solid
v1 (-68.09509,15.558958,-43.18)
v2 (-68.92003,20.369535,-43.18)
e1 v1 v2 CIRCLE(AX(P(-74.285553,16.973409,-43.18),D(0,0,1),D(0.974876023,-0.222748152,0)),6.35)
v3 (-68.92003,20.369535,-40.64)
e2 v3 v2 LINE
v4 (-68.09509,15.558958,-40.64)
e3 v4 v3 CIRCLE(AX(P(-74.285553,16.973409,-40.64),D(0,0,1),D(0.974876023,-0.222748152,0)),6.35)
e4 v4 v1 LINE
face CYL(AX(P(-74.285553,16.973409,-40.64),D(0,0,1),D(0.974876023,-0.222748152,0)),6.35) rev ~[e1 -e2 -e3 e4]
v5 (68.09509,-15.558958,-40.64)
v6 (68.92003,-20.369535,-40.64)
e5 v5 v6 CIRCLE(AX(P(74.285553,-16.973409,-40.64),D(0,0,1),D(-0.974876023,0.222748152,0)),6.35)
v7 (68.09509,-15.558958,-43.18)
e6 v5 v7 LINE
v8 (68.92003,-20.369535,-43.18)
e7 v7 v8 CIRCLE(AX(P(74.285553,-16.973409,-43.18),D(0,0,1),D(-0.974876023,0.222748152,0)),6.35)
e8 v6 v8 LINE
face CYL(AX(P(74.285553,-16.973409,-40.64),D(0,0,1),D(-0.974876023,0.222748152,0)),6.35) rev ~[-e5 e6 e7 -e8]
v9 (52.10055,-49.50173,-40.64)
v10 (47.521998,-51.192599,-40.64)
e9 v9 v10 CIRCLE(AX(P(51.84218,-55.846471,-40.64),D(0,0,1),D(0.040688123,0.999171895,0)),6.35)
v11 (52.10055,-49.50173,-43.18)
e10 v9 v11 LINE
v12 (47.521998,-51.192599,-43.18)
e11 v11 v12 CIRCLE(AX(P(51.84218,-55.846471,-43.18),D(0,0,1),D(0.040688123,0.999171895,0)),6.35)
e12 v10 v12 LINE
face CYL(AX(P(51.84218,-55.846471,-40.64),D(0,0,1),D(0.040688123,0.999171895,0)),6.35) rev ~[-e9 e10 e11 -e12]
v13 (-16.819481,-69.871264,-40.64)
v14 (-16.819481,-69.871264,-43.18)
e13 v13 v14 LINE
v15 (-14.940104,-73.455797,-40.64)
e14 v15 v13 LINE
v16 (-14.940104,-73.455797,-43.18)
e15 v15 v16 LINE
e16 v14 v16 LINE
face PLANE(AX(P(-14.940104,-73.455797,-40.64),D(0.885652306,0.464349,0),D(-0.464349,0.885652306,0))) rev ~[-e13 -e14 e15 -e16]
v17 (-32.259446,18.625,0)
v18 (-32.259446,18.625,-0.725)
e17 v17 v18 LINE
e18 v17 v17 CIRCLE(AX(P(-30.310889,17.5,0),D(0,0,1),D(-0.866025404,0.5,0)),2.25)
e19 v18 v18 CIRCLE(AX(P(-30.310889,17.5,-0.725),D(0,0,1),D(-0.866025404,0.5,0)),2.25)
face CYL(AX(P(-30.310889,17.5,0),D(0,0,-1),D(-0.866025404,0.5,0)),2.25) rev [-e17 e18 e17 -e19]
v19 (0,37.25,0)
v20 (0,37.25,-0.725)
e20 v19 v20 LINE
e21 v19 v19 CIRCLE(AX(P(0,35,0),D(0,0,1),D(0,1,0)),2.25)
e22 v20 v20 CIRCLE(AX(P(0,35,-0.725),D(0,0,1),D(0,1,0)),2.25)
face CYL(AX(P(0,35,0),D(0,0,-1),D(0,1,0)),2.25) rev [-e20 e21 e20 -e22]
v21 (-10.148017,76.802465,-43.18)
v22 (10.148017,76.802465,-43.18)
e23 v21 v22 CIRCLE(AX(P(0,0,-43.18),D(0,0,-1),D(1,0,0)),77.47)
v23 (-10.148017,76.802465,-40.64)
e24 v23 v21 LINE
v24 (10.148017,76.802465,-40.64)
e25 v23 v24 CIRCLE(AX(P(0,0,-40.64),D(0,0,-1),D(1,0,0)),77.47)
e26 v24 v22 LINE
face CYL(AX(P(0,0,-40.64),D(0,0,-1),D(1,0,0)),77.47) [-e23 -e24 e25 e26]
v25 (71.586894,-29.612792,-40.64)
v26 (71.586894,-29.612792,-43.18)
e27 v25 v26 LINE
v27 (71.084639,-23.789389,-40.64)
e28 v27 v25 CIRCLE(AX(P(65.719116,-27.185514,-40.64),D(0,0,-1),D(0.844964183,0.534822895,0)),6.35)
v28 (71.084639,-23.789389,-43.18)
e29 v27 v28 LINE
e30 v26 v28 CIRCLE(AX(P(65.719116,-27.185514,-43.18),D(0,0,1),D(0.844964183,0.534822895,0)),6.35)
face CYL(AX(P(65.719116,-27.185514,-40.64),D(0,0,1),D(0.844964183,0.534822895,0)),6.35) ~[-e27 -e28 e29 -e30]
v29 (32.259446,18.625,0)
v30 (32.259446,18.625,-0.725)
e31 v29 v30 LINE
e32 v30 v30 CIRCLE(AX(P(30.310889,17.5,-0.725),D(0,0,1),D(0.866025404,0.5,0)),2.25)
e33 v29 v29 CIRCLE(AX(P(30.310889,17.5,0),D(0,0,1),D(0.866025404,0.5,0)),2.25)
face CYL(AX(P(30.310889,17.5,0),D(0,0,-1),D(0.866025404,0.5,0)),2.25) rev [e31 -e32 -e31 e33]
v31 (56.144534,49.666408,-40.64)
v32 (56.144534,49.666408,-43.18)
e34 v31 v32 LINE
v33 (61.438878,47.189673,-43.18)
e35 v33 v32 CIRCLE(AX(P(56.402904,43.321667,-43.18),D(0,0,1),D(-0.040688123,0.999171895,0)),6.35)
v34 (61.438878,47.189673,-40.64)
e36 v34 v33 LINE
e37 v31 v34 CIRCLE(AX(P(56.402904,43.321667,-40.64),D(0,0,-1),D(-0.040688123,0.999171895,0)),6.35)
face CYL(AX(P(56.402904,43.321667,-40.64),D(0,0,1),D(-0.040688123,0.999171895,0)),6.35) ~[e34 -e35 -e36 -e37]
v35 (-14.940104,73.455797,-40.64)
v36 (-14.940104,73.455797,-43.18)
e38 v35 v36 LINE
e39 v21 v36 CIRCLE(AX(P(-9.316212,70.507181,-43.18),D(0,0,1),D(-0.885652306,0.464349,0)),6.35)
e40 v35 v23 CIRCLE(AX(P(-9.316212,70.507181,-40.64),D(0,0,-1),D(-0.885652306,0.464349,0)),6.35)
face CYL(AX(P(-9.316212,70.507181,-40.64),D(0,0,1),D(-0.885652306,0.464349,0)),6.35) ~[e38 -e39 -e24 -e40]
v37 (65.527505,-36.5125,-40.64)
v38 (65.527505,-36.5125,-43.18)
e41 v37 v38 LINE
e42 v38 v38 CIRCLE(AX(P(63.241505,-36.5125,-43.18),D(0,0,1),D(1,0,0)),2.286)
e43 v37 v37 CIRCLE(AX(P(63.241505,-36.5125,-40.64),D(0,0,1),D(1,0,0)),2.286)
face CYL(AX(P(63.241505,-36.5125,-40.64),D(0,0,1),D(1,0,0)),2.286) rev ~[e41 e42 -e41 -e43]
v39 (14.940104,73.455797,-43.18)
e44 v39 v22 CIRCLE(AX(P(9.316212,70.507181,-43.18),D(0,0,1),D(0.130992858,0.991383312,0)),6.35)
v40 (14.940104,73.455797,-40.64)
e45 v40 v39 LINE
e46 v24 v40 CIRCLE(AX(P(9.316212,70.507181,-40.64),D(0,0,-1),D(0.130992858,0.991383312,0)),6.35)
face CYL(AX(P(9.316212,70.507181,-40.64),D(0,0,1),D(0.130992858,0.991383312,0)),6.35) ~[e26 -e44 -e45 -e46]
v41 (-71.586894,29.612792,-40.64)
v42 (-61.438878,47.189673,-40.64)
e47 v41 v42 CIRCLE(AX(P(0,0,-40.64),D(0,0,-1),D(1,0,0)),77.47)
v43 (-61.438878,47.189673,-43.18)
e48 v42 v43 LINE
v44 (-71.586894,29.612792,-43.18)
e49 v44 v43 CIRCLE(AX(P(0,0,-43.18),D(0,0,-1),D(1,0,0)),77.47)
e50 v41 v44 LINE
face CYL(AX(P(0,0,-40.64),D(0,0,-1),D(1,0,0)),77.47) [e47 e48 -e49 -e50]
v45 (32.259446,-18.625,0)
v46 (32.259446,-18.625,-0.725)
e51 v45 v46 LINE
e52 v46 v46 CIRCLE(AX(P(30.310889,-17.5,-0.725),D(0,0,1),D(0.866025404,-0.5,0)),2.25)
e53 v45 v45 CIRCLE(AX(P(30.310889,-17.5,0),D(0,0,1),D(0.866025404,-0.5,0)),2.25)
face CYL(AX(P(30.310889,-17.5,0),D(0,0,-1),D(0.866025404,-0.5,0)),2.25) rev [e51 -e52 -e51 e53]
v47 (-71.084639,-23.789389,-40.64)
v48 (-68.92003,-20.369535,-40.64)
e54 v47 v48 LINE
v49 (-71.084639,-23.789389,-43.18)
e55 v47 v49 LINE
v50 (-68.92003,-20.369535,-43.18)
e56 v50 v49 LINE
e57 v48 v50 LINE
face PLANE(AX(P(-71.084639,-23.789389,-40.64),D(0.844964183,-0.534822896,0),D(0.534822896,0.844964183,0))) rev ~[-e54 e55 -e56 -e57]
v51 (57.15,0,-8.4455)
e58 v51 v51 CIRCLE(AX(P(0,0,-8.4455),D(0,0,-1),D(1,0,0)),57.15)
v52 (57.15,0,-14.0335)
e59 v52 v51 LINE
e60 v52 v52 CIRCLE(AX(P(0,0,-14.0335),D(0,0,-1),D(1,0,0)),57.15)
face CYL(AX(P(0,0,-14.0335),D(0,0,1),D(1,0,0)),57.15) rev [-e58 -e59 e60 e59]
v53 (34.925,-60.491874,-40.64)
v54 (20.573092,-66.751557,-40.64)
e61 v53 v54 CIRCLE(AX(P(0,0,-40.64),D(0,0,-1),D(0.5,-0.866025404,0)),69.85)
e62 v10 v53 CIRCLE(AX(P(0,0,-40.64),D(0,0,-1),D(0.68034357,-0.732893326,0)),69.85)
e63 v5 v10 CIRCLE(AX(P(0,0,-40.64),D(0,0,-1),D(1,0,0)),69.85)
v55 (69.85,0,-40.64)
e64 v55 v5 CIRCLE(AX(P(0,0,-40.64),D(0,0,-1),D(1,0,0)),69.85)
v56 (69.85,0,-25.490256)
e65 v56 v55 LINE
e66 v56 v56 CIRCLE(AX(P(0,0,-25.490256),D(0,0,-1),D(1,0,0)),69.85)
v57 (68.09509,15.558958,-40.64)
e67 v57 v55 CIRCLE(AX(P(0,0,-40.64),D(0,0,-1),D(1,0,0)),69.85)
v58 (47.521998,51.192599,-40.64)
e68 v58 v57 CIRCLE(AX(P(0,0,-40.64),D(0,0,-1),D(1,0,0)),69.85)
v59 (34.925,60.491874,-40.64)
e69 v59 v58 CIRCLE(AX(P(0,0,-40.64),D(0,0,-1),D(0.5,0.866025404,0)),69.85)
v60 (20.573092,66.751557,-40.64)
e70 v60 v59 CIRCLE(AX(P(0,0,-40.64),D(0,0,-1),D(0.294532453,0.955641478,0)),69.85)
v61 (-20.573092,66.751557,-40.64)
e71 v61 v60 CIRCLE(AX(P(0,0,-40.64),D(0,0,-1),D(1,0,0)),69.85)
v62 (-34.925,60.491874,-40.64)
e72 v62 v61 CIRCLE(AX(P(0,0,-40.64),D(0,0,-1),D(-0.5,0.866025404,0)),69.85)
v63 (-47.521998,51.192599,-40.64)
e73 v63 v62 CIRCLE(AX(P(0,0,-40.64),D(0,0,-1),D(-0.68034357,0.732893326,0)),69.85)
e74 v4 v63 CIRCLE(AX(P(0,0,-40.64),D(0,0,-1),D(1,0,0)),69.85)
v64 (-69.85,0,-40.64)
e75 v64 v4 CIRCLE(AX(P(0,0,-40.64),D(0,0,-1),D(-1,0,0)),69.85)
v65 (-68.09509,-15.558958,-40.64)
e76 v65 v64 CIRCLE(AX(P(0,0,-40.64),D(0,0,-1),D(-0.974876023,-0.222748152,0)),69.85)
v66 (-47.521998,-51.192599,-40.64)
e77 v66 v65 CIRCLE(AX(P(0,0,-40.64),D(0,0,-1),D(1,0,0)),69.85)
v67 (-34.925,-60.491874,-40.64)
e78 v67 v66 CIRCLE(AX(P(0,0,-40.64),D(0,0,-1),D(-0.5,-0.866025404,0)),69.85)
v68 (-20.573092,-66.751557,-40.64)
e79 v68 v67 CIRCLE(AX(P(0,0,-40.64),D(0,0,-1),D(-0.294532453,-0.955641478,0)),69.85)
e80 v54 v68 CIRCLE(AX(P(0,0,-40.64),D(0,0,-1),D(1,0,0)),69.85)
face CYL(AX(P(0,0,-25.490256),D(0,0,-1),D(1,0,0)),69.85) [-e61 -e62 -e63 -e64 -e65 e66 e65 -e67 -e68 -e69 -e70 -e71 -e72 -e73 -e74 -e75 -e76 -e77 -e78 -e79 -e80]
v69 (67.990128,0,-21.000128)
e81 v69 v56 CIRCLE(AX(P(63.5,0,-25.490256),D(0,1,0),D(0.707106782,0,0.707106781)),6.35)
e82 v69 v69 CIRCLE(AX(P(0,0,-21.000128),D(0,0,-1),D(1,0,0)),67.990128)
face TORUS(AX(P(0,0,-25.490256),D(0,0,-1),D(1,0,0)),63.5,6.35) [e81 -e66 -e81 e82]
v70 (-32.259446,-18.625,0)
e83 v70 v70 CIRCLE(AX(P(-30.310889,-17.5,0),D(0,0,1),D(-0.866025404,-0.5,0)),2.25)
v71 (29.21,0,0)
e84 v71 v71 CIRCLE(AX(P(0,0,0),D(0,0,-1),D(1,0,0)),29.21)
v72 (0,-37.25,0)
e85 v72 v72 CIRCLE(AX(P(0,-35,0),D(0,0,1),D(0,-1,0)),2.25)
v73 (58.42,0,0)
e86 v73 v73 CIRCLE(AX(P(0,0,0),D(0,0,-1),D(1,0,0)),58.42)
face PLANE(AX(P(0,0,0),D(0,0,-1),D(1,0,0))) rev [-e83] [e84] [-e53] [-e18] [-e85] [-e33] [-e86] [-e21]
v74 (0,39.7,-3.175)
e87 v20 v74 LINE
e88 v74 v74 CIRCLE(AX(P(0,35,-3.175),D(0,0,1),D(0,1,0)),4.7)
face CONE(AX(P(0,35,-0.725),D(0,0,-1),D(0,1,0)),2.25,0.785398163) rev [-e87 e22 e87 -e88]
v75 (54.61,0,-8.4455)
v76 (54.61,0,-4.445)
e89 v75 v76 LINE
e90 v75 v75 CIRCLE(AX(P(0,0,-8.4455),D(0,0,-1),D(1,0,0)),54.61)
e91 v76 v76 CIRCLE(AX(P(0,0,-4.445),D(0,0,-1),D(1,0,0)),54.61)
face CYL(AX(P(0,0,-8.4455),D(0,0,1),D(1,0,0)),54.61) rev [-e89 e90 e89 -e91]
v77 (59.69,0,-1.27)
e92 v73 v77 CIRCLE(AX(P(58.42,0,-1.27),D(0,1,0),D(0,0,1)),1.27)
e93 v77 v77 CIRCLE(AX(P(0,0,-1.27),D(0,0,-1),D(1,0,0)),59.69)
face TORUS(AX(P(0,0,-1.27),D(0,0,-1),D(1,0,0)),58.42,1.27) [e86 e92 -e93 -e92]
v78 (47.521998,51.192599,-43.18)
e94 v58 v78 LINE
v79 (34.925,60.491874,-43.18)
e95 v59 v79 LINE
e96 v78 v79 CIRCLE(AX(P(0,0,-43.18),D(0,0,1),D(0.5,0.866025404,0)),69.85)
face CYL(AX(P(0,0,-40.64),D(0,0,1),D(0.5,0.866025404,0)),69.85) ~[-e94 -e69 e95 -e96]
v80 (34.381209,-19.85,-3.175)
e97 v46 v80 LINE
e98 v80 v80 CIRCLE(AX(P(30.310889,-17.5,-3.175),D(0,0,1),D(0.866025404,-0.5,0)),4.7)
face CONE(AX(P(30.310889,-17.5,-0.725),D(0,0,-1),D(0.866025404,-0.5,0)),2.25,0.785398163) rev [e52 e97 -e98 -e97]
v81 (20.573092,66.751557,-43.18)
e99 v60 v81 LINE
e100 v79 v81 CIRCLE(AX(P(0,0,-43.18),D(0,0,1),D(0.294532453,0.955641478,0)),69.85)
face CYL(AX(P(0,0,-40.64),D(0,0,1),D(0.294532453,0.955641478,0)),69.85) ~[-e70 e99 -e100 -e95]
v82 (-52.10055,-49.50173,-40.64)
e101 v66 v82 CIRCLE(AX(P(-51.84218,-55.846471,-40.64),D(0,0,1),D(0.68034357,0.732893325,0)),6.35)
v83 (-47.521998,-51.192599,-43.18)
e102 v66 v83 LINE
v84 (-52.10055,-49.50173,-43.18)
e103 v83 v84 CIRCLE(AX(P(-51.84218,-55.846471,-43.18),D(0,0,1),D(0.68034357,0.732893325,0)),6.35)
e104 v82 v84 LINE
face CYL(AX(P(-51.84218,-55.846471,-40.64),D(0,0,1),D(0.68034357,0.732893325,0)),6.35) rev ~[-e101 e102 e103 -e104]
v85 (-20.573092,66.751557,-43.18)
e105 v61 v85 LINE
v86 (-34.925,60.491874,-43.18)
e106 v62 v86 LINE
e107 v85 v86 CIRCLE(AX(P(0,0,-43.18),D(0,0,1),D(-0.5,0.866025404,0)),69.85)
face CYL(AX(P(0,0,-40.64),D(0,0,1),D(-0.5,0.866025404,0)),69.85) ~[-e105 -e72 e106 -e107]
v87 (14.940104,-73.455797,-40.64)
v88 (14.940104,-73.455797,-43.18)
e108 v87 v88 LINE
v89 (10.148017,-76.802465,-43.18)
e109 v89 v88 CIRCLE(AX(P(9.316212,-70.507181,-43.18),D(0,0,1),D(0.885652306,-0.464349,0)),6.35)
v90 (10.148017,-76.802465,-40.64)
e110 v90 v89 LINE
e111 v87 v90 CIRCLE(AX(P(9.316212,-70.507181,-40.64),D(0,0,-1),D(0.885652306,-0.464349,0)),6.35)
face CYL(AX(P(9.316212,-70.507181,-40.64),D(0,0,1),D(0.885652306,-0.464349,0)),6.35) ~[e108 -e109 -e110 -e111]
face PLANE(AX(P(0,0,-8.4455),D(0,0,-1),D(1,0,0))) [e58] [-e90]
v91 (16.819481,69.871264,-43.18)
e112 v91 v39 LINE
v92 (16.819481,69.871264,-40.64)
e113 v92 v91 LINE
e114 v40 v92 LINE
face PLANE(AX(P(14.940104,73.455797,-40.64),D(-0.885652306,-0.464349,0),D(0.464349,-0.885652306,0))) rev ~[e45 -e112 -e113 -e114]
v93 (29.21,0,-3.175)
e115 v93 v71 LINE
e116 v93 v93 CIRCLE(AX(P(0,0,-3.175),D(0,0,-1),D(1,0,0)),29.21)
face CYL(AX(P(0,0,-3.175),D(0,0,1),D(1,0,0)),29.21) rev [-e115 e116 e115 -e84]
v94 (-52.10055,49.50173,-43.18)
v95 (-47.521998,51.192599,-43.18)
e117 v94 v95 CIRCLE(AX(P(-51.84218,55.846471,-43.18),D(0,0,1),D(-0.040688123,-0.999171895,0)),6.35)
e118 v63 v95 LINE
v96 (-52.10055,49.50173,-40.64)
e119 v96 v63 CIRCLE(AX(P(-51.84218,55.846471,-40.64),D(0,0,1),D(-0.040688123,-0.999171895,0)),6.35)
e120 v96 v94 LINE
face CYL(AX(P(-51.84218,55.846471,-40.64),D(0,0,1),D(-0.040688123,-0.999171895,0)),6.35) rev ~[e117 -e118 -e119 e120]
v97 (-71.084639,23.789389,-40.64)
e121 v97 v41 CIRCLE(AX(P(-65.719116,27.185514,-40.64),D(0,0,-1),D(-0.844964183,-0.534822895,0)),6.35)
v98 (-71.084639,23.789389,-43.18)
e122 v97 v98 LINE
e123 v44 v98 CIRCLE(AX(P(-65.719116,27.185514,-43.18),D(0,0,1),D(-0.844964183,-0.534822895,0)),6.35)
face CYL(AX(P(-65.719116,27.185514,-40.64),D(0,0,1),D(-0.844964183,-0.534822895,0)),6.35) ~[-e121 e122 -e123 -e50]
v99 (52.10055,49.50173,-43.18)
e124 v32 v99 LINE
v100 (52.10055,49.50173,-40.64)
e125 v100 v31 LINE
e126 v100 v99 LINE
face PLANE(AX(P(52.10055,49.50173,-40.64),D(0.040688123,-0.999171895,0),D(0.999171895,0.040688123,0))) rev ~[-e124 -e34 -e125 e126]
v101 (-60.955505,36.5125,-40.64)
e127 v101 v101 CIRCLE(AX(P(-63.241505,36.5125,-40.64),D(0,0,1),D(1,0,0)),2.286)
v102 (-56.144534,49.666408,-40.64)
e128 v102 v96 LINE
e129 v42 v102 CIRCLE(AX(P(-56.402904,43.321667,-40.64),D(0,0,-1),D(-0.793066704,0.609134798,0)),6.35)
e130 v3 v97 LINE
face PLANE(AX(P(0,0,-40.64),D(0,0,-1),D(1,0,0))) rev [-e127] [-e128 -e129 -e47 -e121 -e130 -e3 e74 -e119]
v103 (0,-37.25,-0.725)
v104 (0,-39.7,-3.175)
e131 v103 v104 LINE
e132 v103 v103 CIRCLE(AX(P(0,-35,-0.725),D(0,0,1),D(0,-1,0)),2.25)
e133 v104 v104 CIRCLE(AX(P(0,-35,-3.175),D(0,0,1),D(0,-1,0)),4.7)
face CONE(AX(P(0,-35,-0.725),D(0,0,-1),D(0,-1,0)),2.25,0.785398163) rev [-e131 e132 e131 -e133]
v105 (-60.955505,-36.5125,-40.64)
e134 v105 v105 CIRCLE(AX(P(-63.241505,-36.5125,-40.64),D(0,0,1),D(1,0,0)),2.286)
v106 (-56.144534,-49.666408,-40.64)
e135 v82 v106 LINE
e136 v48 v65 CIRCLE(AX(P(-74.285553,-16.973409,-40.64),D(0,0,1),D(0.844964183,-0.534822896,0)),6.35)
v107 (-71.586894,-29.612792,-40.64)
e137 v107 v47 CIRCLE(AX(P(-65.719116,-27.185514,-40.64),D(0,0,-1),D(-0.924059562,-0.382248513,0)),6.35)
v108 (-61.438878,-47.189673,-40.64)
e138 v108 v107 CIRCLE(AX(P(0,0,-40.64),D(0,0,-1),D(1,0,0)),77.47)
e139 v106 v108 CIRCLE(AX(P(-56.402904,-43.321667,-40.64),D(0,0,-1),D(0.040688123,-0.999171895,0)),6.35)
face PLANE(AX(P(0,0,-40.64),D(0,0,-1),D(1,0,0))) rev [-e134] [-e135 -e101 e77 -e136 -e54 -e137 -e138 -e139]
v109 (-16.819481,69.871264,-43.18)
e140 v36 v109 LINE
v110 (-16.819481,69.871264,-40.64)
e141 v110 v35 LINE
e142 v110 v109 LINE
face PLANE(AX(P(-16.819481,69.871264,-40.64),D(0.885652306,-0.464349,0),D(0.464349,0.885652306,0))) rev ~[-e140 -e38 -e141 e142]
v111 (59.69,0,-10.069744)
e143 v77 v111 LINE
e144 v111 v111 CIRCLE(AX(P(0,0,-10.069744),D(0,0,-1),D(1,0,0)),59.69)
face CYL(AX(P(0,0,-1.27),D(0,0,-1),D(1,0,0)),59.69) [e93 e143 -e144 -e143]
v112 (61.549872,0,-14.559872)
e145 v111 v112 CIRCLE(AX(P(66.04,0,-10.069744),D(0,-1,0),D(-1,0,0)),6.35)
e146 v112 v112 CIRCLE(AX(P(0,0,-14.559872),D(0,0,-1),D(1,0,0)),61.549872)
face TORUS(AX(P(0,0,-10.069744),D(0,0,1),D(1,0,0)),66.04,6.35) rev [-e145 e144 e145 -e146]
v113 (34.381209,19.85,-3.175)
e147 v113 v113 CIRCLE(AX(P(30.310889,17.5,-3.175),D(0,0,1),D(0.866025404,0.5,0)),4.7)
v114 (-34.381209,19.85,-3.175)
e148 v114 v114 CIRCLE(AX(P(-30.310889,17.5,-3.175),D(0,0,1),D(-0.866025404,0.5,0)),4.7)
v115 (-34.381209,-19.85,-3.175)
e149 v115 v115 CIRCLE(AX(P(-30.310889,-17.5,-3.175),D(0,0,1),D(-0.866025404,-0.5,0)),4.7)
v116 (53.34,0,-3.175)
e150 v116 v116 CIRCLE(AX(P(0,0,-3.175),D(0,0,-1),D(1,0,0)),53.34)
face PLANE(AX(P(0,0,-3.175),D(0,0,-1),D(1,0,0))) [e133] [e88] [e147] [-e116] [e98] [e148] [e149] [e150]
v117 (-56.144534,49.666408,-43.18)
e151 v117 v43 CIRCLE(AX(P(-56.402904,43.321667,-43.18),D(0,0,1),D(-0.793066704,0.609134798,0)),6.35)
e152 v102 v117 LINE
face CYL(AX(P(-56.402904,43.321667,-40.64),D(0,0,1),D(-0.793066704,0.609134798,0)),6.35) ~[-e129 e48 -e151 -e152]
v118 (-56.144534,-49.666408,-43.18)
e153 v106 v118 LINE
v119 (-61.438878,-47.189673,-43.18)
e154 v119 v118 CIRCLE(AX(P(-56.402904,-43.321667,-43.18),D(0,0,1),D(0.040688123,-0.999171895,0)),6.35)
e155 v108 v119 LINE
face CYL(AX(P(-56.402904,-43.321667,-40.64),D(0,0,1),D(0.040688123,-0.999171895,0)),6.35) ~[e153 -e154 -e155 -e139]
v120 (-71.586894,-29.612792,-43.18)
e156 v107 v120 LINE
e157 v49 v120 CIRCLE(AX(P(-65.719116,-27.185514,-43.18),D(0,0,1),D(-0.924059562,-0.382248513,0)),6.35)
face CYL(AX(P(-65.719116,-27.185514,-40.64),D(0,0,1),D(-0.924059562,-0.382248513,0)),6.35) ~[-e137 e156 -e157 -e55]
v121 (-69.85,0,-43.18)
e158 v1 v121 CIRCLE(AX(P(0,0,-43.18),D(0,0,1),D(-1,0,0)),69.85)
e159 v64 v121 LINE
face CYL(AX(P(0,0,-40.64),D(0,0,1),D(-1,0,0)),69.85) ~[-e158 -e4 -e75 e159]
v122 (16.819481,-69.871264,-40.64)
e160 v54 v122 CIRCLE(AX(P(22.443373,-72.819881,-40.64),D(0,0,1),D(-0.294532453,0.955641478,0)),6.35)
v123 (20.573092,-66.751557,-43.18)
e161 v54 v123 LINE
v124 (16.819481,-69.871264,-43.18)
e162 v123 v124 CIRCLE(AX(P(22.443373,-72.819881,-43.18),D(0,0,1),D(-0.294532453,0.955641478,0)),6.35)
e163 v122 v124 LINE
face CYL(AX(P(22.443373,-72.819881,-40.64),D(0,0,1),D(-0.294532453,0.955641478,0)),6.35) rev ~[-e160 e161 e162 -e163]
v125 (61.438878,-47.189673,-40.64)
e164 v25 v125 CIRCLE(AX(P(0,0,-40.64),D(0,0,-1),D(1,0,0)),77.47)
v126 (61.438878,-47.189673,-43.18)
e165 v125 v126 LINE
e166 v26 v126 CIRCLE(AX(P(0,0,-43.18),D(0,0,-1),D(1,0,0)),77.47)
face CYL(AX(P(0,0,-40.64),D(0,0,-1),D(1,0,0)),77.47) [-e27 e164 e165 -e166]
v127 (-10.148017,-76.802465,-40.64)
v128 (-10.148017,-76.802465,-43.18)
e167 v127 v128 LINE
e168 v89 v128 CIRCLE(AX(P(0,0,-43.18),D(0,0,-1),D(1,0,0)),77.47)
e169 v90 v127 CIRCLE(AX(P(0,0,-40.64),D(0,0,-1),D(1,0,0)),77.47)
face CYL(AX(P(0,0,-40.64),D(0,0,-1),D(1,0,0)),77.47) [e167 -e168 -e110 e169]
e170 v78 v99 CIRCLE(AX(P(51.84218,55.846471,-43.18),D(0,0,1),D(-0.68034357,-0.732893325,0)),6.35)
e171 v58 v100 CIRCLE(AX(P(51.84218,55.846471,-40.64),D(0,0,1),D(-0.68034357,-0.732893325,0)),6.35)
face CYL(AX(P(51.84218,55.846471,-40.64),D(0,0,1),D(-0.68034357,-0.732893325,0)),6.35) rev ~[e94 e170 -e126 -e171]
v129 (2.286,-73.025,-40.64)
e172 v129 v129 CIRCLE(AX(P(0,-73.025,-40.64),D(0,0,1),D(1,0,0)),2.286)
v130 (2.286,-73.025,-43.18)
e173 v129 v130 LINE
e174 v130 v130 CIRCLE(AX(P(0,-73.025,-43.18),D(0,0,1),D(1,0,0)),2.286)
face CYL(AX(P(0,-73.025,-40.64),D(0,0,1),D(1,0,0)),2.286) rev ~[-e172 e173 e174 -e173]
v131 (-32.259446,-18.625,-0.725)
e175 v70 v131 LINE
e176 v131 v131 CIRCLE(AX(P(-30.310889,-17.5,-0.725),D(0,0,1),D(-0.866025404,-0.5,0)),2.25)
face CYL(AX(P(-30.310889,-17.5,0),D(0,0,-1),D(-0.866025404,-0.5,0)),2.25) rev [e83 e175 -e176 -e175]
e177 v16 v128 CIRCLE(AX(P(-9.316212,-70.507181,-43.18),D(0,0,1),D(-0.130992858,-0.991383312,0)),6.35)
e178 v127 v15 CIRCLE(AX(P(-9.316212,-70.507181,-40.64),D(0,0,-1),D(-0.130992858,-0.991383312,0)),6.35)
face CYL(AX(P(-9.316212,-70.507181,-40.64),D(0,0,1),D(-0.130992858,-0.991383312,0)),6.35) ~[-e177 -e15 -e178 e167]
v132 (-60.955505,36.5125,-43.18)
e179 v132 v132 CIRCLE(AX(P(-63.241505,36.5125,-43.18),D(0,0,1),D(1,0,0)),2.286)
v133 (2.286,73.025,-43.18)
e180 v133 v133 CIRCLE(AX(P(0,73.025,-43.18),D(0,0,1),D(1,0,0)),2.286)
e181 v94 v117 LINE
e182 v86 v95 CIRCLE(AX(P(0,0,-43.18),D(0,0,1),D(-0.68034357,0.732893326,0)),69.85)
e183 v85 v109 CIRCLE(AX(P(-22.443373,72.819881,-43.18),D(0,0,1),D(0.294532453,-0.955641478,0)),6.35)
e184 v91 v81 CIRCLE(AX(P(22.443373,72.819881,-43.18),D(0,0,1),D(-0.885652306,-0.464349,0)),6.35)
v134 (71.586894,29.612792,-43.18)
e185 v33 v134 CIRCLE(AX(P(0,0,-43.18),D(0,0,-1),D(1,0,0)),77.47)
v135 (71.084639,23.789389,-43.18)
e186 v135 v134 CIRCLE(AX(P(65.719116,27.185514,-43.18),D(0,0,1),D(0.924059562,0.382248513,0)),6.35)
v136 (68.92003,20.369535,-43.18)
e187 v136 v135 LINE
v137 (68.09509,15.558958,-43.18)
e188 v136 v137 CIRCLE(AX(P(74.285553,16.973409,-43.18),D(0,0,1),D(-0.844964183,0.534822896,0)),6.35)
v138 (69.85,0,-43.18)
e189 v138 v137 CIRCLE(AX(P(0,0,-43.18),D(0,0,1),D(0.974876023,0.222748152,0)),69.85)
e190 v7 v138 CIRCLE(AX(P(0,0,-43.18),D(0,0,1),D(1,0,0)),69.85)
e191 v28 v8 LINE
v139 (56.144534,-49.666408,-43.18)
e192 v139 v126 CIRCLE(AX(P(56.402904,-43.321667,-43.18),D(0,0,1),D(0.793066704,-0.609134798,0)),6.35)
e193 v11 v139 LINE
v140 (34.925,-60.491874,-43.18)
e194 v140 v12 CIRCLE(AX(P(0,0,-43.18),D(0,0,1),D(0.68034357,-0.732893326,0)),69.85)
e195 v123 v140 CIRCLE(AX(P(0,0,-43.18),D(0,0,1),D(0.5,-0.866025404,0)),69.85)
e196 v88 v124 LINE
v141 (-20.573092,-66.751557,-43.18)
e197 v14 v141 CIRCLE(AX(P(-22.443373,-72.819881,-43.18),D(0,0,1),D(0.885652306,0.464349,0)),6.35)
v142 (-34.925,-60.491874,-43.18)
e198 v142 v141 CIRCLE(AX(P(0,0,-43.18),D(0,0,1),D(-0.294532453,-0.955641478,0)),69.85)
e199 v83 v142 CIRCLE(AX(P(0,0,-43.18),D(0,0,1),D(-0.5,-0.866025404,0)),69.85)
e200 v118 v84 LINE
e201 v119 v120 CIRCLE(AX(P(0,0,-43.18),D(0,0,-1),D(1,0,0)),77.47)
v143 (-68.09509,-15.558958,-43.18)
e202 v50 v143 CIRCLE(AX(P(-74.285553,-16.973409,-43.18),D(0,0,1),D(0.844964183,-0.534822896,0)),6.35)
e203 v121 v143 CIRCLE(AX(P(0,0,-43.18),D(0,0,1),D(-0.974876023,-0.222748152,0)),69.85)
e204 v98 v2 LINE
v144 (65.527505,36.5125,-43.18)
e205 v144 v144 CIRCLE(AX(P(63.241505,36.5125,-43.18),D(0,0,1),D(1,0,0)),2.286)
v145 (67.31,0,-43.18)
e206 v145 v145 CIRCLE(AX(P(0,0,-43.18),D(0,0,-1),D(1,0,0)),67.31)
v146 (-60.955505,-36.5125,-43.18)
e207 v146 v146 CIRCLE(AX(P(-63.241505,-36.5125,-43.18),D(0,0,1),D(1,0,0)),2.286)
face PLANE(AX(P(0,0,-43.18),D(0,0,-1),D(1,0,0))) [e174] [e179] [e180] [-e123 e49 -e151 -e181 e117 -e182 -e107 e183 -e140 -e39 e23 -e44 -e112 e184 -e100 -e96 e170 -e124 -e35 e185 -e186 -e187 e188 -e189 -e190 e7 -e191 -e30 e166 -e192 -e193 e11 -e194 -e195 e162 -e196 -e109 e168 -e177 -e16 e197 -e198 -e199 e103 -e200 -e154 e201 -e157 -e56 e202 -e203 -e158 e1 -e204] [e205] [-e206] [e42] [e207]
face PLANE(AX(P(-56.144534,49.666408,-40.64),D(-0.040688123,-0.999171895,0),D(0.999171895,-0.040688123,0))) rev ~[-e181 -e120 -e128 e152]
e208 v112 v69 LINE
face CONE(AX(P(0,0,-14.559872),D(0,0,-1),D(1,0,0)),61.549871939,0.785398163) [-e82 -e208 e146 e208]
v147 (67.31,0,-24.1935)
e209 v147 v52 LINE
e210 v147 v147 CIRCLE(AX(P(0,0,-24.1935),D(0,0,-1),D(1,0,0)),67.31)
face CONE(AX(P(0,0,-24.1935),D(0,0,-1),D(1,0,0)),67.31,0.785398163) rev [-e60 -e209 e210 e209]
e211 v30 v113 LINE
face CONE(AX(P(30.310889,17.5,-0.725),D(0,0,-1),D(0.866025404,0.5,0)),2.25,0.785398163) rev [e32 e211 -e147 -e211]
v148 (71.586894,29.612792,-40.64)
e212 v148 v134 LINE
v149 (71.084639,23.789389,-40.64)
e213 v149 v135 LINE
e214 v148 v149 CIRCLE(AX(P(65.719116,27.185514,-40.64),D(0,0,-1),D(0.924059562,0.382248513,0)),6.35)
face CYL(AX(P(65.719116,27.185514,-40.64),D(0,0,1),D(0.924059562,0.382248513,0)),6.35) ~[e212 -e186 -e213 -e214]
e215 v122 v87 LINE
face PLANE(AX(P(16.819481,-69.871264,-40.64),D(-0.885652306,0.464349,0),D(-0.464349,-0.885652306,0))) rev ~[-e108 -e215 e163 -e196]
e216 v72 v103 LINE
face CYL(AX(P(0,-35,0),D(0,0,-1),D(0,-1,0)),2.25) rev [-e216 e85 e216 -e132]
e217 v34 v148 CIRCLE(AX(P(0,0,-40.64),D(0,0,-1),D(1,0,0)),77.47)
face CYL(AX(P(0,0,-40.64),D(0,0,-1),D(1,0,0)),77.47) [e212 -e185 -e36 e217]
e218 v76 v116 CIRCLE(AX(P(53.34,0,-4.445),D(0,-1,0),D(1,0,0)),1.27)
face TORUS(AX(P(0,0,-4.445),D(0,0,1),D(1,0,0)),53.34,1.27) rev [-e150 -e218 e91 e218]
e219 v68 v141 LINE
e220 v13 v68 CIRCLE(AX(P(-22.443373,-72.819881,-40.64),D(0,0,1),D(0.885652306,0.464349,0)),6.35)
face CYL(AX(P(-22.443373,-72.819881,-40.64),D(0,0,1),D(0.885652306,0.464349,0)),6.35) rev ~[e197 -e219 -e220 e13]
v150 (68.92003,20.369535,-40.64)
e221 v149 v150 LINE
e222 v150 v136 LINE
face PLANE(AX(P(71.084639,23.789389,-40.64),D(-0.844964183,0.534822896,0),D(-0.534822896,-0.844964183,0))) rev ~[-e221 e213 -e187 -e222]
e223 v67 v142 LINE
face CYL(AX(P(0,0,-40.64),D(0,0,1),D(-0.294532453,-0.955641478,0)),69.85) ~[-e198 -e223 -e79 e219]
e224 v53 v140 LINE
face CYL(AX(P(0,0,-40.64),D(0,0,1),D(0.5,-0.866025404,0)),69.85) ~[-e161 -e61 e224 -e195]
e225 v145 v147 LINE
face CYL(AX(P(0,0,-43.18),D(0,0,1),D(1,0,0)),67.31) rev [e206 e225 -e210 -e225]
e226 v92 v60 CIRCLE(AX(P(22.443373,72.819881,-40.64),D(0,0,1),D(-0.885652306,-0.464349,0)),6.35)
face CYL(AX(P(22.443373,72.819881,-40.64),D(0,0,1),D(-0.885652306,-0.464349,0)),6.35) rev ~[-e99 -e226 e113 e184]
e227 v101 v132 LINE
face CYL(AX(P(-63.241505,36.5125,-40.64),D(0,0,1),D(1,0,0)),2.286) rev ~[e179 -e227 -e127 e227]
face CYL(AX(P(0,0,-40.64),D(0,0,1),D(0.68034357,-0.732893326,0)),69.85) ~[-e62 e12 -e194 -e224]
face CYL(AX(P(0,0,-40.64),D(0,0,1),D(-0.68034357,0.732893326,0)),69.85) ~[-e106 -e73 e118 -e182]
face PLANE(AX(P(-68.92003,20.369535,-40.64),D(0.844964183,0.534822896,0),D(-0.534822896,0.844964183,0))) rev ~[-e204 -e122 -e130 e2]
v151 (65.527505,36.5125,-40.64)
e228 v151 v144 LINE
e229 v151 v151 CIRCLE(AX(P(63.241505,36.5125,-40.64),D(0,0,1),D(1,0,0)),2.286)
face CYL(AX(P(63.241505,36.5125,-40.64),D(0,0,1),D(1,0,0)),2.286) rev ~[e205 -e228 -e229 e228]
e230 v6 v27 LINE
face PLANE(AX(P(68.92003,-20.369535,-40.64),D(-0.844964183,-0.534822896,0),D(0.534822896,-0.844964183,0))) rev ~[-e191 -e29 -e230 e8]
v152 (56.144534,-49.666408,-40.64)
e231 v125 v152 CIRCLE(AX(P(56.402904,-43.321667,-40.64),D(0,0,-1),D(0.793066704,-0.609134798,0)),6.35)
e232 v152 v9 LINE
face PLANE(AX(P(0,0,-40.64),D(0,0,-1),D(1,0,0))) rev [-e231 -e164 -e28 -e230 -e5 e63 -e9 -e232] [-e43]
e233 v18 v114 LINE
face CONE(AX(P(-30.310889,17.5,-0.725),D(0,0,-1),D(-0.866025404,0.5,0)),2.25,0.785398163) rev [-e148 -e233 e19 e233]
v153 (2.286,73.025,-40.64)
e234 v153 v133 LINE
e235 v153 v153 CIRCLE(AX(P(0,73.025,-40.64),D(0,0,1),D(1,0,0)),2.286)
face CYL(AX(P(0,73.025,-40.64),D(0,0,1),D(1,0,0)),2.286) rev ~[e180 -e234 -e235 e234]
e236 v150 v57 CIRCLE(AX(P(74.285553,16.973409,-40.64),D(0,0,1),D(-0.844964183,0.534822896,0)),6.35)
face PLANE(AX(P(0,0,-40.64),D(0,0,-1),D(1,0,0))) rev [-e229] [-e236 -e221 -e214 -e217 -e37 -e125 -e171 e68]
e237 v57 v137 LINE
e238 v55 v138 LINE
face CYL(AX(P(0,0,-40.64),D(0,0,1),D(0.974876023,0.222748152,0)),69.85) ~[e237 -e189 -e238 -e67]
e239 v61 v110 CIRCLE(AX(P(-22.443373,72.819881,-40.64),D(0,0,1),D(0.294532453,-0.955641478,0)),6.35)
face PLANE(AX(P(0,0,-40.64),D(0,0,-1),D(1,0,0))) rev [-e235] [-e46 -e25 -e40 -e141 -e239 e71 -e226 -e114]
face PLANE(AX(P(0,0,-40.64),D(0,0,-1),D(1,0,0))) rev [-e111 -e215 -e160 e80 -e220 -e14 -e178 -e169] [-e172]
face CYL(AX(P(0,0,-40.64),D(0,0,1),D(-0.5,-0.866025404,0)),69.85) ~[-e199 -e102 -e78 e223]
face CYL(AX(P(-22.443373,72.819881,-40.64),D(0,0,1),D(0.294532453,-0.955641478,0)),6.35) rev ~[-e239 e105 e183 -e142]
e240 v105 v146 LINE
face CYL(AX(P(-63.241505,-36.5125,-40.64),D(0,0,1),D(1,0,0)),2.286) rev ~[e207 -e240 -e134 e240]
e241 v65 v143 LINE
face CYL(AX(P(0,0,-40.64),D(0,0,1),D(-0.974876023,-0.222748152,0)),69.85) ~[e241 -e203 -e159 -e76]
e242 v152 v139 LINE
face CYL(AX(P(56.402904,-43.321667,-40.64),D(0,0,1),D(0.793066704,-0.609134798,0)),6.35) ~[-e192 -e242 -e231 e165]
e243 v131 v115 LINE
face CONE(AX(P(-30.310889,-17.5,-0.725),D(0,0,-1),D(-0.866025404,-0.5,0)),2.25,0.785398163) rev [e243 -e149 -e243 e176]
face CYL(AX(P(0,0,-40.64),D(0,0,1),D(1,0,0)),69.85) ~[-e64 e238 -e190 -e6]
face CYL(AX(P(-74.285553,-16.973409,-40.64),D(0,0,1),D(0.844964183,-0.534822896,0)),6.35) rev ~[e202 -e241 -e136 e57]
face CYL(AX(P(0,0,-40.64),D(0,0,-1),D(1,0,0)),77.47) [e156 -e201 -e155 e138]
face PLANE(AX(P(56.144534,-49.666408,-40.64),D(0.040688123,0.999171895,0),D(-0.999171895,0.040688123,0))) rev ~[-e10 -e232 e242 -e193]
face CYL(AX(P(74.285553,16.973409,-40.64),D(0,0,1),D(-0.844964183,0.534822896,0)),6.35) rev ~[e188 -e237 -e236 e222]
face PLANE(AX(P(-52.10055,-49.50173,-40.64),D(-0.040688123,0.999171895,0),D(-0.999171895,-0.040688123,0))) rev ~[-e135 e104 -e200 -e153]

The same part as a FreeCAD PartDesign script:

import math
import FreeCAD as App
import Part
import Sketcher

V = App.Vector
Q = App.Units.Quantity

doc = App.newDocument("Part")
body = doc.addObject("PartDesign::Body", "Body")

sketch1 = body.newObject("Sketcher::SketchObject", "Sketch")
sketch1.AttachmentSupport = (doc.getObject("YZ_Plane"), [""])
sketch1.MapMode = "FlatFace"
sketch1.addGeometry([
    Part.LineSegment(V(58.4, 0, 0), V(29.2, 0, 0)),
    Part.LineSegment(V(29.2, 0, 0), V(29.2, -3.2, 0)),
    Part.LineSegment(V(29.2, -3.2, 0), V(53.3, -3.2, 0)),
    Part.ArcOfCircle(Part.Circle(V(53.3, -4.4, 0), V(0, 0, 1), 1.3), math.radians(0), math.radians(90)),
    Part.LineSegment(V(54.6, -4.4, 0), V(54.6, -8.4, 0)),
    Part.LineSegment(V(54.6, -8.4, 0), V(57.1, -8.4, 0)),
    Part.LineSegment(V(57.1, -8.4, 0), V(57.1, -14, 0)),
    Part.LineSegment(V(57.1, -14, 0), V(67.3, -24.2, 0)),
    Part.LineSegment(V(67.3, -24.2, 0), V(67.3, -43.2, 0)),
    Part.LineSegment(V(67.3, -43.2, 0), V(77.5, -43.2, 0)),
    Part.LineSegment(V(77.5, -43.2, 0), V(77.5, -40.6, 0)),
    Part.LineSegment(V(77.5, -40.6, 0), V(69.8, -40.6, 0)),
    Part.LineSegment(V(69.8, -40.6, 0), V(69.8, -25.5, 0)),
    Part.ArcOfCircle(Part.Circle(V(63.5, -25.5, 0), V(0, 0, 1), 6.4), math.radians(0), math.radians(45)),
    Part.LineSegment(V(68, -21, 0), V(61.5, -14.6, 0)),
    Part.ArcOfCircle(Part.Circle(V(66, -10.1, 0), V(0, 0, 1), 6.4), math.radians(-180), math.radians(-135)),
    Part.LineSegment(V(59.7, -10.1, 0), V(59.7, -1.3, 0)),
    Part.ArcOfCircle(Part.Circle(V(58.4, -1.3, 0), V(0, 0, 1), 1.3), math.radians(0), math.radians(90)),
], False)
sketch1.addConstraint([
    Sketcher.Constraint("Coincident", 0, 2, 1, 1),
    Sketcher.Constraint("Coincident", 1, 2, 2, 1),
    Sketcher.Constraint("Tangent", 2, 2, 3, 2),
    Sketcher.Constraint("Tangent", 3, 1, 4, 1),
    Sketcher.Constraint("Coincident", 4, 2, 5, 1),
    Sketcher.Constraint("Coincident", 5, 2, 6, 1),
    Sketcher.Constraint("Coincident", 6, 2, 7, 1),
    Sketcher.Constraint("Coincident", 7, 2, 8, 1),
    Sketcher.Constraint("Coincident", 8, 2, 9, 1),
    Sketcher.Constraint("Coincident", 9, 2, 10, 1),
    Sketcher.Constraint("Coincident", 10, 2, 11, 1),
    Sketcher.Constraint("Coincident", 11, 2, 12, 1),
    Sketcher.Constraint("Tangent", 12, 2, 13, 1),
    Sketcher.Constraint("Tangent", 13, 2, 14, 1),
    Sketcher.Constraint("Tangent", 14, 2, 15, 2),
    Sketcher.Constraint("Tangent", 15, 1, 16, 1),
    Sketcher.Constraint("Tangent", 16, 2, 17, 1),
    Sketcher.Constraint("Tangent", 17, 2, 0, 1),
    Sketcher.Constraint("Horizontal", 0),
    Sketcher.Constraint("Vertical", 1),
    Sketcher.Constraint("Horizontal", 2),
    Sketcher.Constraint("Vertical", 4),
    Sketcher.Constraint("Horizontal", 5),
    Sketcher.Constraint("Vertical", 6),
    Sketcher.Constraint("Vertical", 8),
    Sketcher.Constraint("Horizontal", 9),
    Sketcher.Constraint("Vertical", 10),
    Sketcher.Constraint("Horizontal", 11),
    Sketcher.Constraint("Vertical", 12),
    Sketcher.Constraint("Vertical", 16),
    Sketcher.Constraint("Equal", 13, 15),
    Sketcher.Constraint("Equal", 3, 17),
    Sketcher.Constraint("PointOnObject", 0, 2, -1),
    Sketcher.Constraint("Parallel", 7, 14),
    Sketcher.Constraint("Equal", 5, 10),
    Sketcher.Constraint("Radius", 3, Q("0.05 in")),
    Sketcher.Constraint("Radius", 13, Q("0.25 in")),
    Sketcher.Constraint("DistanceX", 5, 1, 5, 2, Q("0.1 in")),
    Sketcher.Constraint("DistanceX", 9, 1, 9, 2, Q("0.4 in")),
    Sketcher.Constraint("DistanceX", 11, 2, 11, 1, Q("0.3 in")),
    Sketcher.Constraint("Angle", 7, Q("-45 deg")),
    Sketcher.Constraint("DistanceX", 0, 2, 0, 1, Q("1.15 in")),
    Sketcher.Constraint("DistanceX", 2, 1, 2, 2, Q("0.95 in")),
    Sketcher.Constraint("DistanceY", 6, 2, 6, 1, Q("0.22 in")),
    Sketcher.Constraint("DistanceX", -1, 1, 3, 3, Q("2.1 in")),
    Sketcher.Constraint("DistanceX", -1, 1, 13, 3, Q("2.5 in")),
    Sketcher.Constraint("DistanceY", 8, 2, -1, 1, Q("1.7 in")),
    Sketcher.Constraint("DistanceY", 1, 2, 1, 1, Q("0.125 in")),
    Sketcher.Constraint("DistanceY", 4, 2, 4, 1, Q("0.1575 in")),
    Sketcher.Constraint("DistanceY", 12, 1, 12, 2, Q("15.149744 mm")),
])
revolution = body.newObject("PartDesign::Revolution", "Revolution")
revolution.Profile = sketch1
revolution.ReferenceAxis = (sketch1, ["V_Axis"])
revolution.Angle = 360

sketch2 = body.newObject("Sketcher::SketchObject", "Sketch001")
sketch2.AttachmentSupport = (doc.getObject("YZ_Plane"), [""])
sketch2.MapMode = "FlatFace"
sketch2.addGeometry([
    Part.LineSegment(V(35, 1.4, 0), V(35, -3.2, 0)),
    Part.LineSegment(V(35, -3.2, 0), V(39.7, -3.2, 0)),
    Part.LineSegment(V(39.7, -3.2, 0), V(37.2, -0.7, 0)),
    Part.LineSegment(V(37.2, -0.7, 0), V(37.2, 0, 0)),
    Part.LineSegment(V(37.2, 0, 0), V(35, 1.4, 0)),
], False)
sketch2.addGeometry(Part.LineSegment(V(35, -3.2, 0), V(35, 1.4, 0)), True)
sketch2.addConstraint([
    Sketcher.Constraint("Coincident", 0, 2, 1, 1),
    Sketcher.Constraint("Coincident", 1, 2, 2, 1),
    Sketcher.Constraint("Coincident", 2, 2, 3, 1),
    Sketcher.Constraint("Coincident", 3, 2, 4, 1),
    Sketcher.Constraint("Coincident", 4, 2, 0, 1),
    Sketcher.Constraint("Vertical", 0),
    Sketcher.Constraint("Horizontal", 1),
    Sketcher.Constraint("Vertical", 3),
    Sketcher.Constraint("Vertical", 5),
    Sketcher.Constraint("Coincident", 5, 1, 0, 2),
    Sketcher.Constraint("PointOnObject", 3, 2, -1),
    Sketcher.Constraint("Equal", 0, 5),
    Sketcher.Constraint("Angle", 2, Q("135 deg")),
    Sketcher.Constraint("Angle", 4, Q("149 deg")),
    Sketcher.Constraint("DistanceY", 0, 2, -1, 1, Q("0.125 in")),
    Sketcher.Constraint("DistanceX", 1, 1, 1, 2, Q("4.7 mm")),
    Sketcher.Constraint("DistanceY", 3, 1, 3, 2, Q("0.725 mm")),
    Sketcher.Constraint("DistanceX", -1, 1, 0, 2, Q("35 mm")),
])
groove = body.newObject("PartDesign::Groove", "Groove")
groove.Profile = sketch2
groove.ReferenceAxis = (sketch2, ["Axis0"])
groove.Angle = 360
doc.recompute()

polarpattern = body.newObject("PartDesign::PolarPattern", "PolarPattern")
polarpattern.Originals = [groove]
polarpattern.Axis = (doc.getObject("Z_Axis"), [""])
polarpattern.Angle = 360
polarpattern.Occurrences = 6
body.Tip = polarpattern

sketch3 = body.newObject("Sketcher::SketchObject", "Sketch002")
sketch3.AttachmentSupport = (doc.getObject("XY_Plane"), [""])
sketch3.MapMode = "FlatFace"
sketch3.AttachmentOffset = App.Placement(V(0, 0, -1.6 * 25.4), App.Rotation())
sketch3.addGeometry([
    Part.ArcOfCircle(Part.Circle(V(0, 0, 0), V(0, 0, 1), 77.5), math.radians(0), math.radians(22)),
    Part.ArcOfCircle(Part.Circle(V(65.7, 27.2, 0), V(0, 0, 1), 6.4), math.radians(-32), math.radians(22)),
    Part.LineSegment(V(71.1, 23.8, 0), V(68.9, 20.4, 0)),
    Part.ArcOfCircle(Part.Circle(V(74.3, 17, 0), V(0, 0, 1), 6.3), math.radians(148), math.radians(193)),
    Part.ArcOfCircle(Part.Circle(V(0, 0, 0), V(0, 0, 1), 69.8), math.radians(0), math.radians(12.87)),
    Part.ArcOfCircle(Part.Circle(V(0, 0, 0), V(0, 0, 1), 69.8), math.radians(-12.87), math.radians(0)),
    Part.ArcOfCircle(Part.Circle(V(74.3, -17, 0), V(0, 0, 1), 6.3), math.radians(167), math.radians(212)),
    Part.LineSegment(V(68.9, -20.4, 0), V(71.1, -23.8, 0)),
    Part.ArcOfCircle(Part.Circle(V(65.7, -27.2, 0), V(0, 0, 1), 6.4), math.radians(-22), math.radians(32)),
    Part.ArcOfCircle(Part.Circle(V(0, 0, 0), V(0, 0, 1), 77.5), math.radians(-22), math.radians(0)),
    Part.ArcOfCircle(Part.Circle(V(0, 0, 0), V(0, 0, 1), 77.5), math.radians(-82), math.radians(-38)),
    Part.ArcOfCircle(Part.Circle(V(56.4, -43.3, 0), V(0, 0, 1), 6.3), math.radians(-92), math.radians(-38)),
    Part.LineSegment(V(56.1, -49.7, 0), V(52.1, -49.5, 0)),
    Part.ArcOfCircle(Part.Circle(V(51.8, -55.8, 0), V(0, 0, 1), 6.3), math.radians(88), math.radians(133)),
    Part.ArcOfCircle(Part.Circle(V(0, 0, 0), V(0, 0, 1), 69.9), math.radians(-60), math.radians(-47.13)),
    Part.ArcOfCircle(Part.Circle(V(0, 0, 0), V(0, 0, 1), 69.8), math.radians(-72.87), math.radians(-60)),
    Part.ArcOfCircle(Part.Circle(V(22.4, -72.8, 0), V(0, 0, 1), 6.4), math.radians(107), math.radians(152)),
    Part.LineSegment(V(16.8, -69.9, 0), V(14.9, -73.5, 0)),
    Part.ArcOfCircle(Part.Circle(V(9.3, -70.5, 0), V(0, 0, 1), 6.3), math.radians(-82), math.radians(-28)),
    Part.ArcOfCircle(Part.Circle(V(-56.4, -43.3, 0), V(0, 0, 1), 6.3), math.radians(-142), math.radians(-88)),
    Part.ArcOfCircle(Part.Circle(V(0, 0, 0), V(0, 0, 1), 77.5), math.radians(-142), math.radians(-98)),
    Part.ArcOfCircle(Part.Circle(V(-9.3, -70.5, 0), V(0, 0, 1), 6.3), math.radians(-152), math.radians(-98)),
    Part.LineSegment(V(-14.9, -73.5, 0), V(-16.8, -69.9, 0)),
    Part.ArcOfCircle(Part.Circle(V(-22.4, -72.8, 0), V(0, 0, 1), 6.4), math.radians(28), math.radians(73)),
    Part.ArcOfCircle(Part.Circle(V(0, 0, 0), V(0, 0, 1), 69.8), math.radians(-120), math.radians(-107.13)),
    Part.ArcOfCircle(Part.Circle(V(0, 0, 0), V(0, 0, 1), 69.9), math.radians(-132.87), math.radians(-120)),
    Part.ArcOfCircle(Part.Circle(V(-51.8, -55.8, 0), V(0, 0, 1), 6.3), math.radians(47), math.radians(92)),
    Part.LineSegment(V(-52.1, -49.5, 0), V(-56.1, -49.7, 0)),
    Part.ArcOfCircle(Part.Circle(V(-65.7, 27.2, 0), V(0, 0, 1), 6.4), math.radians(158), math.radians(212)),
    Part.ArcOfCircle(Part.Circle(V(0, 0, 0), V(0, 0, 1), 77.5), math.radians(158), math.radians(202)),
    Part.ArcOfCircle(Part.Circle(V(-65.7, -27.2, 0), V(0, 0, 1), 6.4), math.radians(148), math.radians(202)),
    Part.LineSegment(V(-71.1, -23.8, 0), V(-68.9, -20.4, 0)),
    Part.ArcOfCircle(Part.Circle(V(-74.3, -17, 0), V(0, 0, 1), 6.3), math.radians(-32), math.radians(13)),
    Part.ArcOfCircle(Part.Circle(V(0, 0, 0), V(0, 0, 1), 69.8), math.radians(180), math.radians(192.87)),
    Part.ArcOfCircle(Part.Circle(V(0, 0, 0), V(0, 0, 1), 69.8), math.radians(167.13), math.radians(180)),
    Part.ArcOfCircle(Part.Circle(V(-74.3, 17, 0), V(0, 0, 1), 6.3), math.radians(-13), math.radians(32)),
    Part.LineSegment(V(-68.9, 20.4, 0), V(-71.1, 23.8, 0)),
    Part.ArcOfCircle(Part.Circle(V(-9.3, 70.5, 0), V(0, 0, 1), 6.3), math.radians(98), math.radians(152)),
    Part.ArcOfCircle(Part.Circle(V(0, 0, 0), V(0, 0, 1), 77.5), math.radians(98), math.radians(142)),
    Part.ArcOfCircle(Part.Circle(V(-56.4, 43.3, 0), V(0, 0, 1), 6.3), math.radians(88), math.radians(142)),
    Part.LineSegment(V(-56.1, 49.7, 0), V(-52.1, 49.5, 0)),
    Part.ArcOfCircle(Part.Circle(V(-51.8, 55.8, 0), V(0, 0, 1), 6.3), math.radians(-92), math.radians(-47)),
    Part.ArcOfCircle(Part.Circle(V(0, 0, 0), V(0, 0, 1), 69.9), math.radians(120), math.radians(132.87)),
    Part.ArcOfCircle(Part.Circle(V(0, 0, 0), V(0, 0, 1), 69.8), math.radians(107.13), math.radians(120)),
    Part.ArcOfCircle(Part.Circle(V(-22.4, 72.8, 0), V(0, 0, 1), 6.4), math.radians(-73), math.radians(-28)),
    Part.LineSegment(V(-16.8, 69.9, 0), V(-14.9, 73.5, 0)),
    Part.ArcOfCircle(Part.Circle(V(9.3, 70.5, 0), V(0, 0, 1), 6.3), math.radians(28), math.radians(82)),
    Part.LineSegment(V(14.9, 73.5, 0), V(16.8, 69.9, 0)),
    Part.ArcOfCircle(Part.Circle(V(22.4, 72.8, 0), V(0, 0, 1), 6.4), math.radians(-152), math.radians(-107)),
    Part.ArcOfCircle(Part.Circle(V(0, 0, 0), V(0, 0, 1), 69.8), math.radians(60), math.radians(72.87)),
    Part.ArcOfCircle(Part.Circle(V(0, 0, 0), V(0, 0, 1), 69.9), math.radians(47.13), math.radians(60)),
    Part.ArcOfCircle(Part.Circle(V(51.8, 55.8, 0), V(0, 0, 1), 6.3), math.radians(-133), math.radians(-88)),
    Part.LineSegment(V(52.1, 49.5, 0), V(56.1, 49.7, 0)),
    Part.ArcOfCircle(Part.Circle(V(56.4, 43.3, 0), V(0, 0, 1), 6.3), math.radians(38), math.radians(92)),
    Part.ArcOfCircle(Part.Circle(V(0, 0, 0), V(0, 0, 1), 77.5), math.radians(38), math.radians(82)),
    Part.Circle(V(0, 73, 0), V(0, 0, 1), 2.3),
    Part.Circle(V(63.2, 36.5, 0), V(0, 0, 1), 2.3),
    Part.Circle(V(-63.2, 36.5, 0), V(0, 0, 1), 2.3),
    Part.Circle(V(-63.2, -36.5, 0), V(0, 0, 1), 2.3),
    Part.Circle(V(63.2, -36.5, 0), V(0, 0, 1), 2.3),
    Part.Circle(V(0, -73, 0), V(0, 0, 1), 2.3),
], False)
sketch3.addConstraint([
    Sketcher.Constraint("Tangent", 0, 2, 1, 2),
    Sketcher.Constraint("Tangent", 1, 1, 2, 1),
    Sketcher.Constraint("Tangent", 2, 2, 3, 1),
    Sketcher.Constraint("Tangent", 3, 2, 4, 2),
    Sketcher.Constraint("Tangent", 4, 1, 5, 2),
    Sketcher.Constraint("Tangent", 5, 1, 6, 1),
    Sketcher.Constraint("Tangent", 6, 2, 7, 1),
    Sketcher.Constraint("Tangent", 7, 2, 8, 2),
    Sketcher.Constraint("Tangent", 8, 1, 9, 1),
    Sketcher.Constraint("Tangent", 9, 2, 0, 1),
    Sketcher.Constraint("Tangent", 10, 2, 11, 2),
    Sketcher.Constraint("Tangent", 11, 1, 12, 1),
    Sketcher.Constraint("Tangent", 12, 2, 13, 1),
    Sketcher.Constraint("Tangent", 13, 2, 14, 2),
    Sketcher.Constraint("Tangent", 14, 1, 15, 2),
    Sketcher.Constraint("Tangent", 15, 1, 16, 1),
    Sketcher.Constraint("Tangent", 16, 2, 17, 1),
    Sketcher.Constraint("Tangent", 17, 2, 18, 2),
    Sketcher.Constraint("Tangent", 18, 1, 10, 1),
    Sketcher.Constraint("Tangent", 19, 1, 20, 1),
    Sketcher.Constraint("Tangent", 20, 2, 21, 2),
    Sketcher.Constraint("Tangent", 21, 1, 22, 1),
    Sketcher.Constraint("Tangent", 22, 2, 23, 1),
    Sketcher.Constraint("Tangent", 23, 2, 24, 2),
    Sketcher.Constraint("Tangent", 24, 1, 25, 2),
    Sketcher.Constraint("Tangent", 25, 1, 26, 1),
    Sketcher.Constraint("Tangent", 26, 2, 27, 1),
    Sketcher.Constraint("Tangent", 27, 2, 19, 2),
    Sketcher.Constraint("Tangent", 28, 1, 29, 1),
    Sketcher.Constraint("Tangent", 29, 2, 30, 2),
    Sketcher.Constraint("Tangent", 30, 1, 31, 1),
    Sketcher.Constraint("Tangent", 31, 2, 32, 1),
    Sketcher.Constraint("Tangent", 32, 2, 33, 2),
    Sketcher.Constraint("Tangent", 33, 1, 34, 2),
    Sketcher.Constraint("Tangent", 34, 1, 35, 1),
    Sketcher.Constraint("Tangent", 35, 2, 36, 1),
    Sketcher.Constraint("Tangent", 36, 2, 28, 2),
    Sketcher.Constraint("Tangent", 37, 1, 38, 1),
    Sketcher.Constraint("Tangent", 38, 2, 39, 2),
    Sketcher.Constraint("Tangent", 39, 1, 40, 1),
    Sketcher.Constraint("Tangent", 40, 2, 41, 1),
    Sketcher.Constraint("Tangent", 41, 2, 42, 2),
    Sketcher.Constraint("Tangent", 42, 1, 43, 2),
    Sketcher.Constraint("Tangent", 43, 1, 44, 1),
    Sketcher.Constraint("Tangent", 44, 2, 45, 1),
    Sketcher.Constraint("Tangent", 45, 2, 37, 2),
    Sketcher.Constraint("Tangent", 46, 1, 47, 1),
    Sketcher.Constraint("Tangent", 47, 2, 48, 1),
    Sketcher.Constraint("Tangent", 48, 2, 49, 2),
    Sketcher.Constraint("Tangent", 49, 1, 50, 2),
    Sketcher.Constraint("Tangent", 50, 1, 51, 1),
    Sketcher.Constraint("Tangent", 51, 2, 52, 1),
    Sketcher.Constraint("Tangent", 52, 2, 53, 2),
    Sketcher.Constraint("Tangent", 53, 1, 54, 1),
    Sketcher.Constraint("Tangent", 54, 2, 46, 2),
    Sketcher.Constraint("Coincident", 0, 3, -1, 1),
    Sketcher.Constraint("Coincident", 4, 3, -1, 1),
    Sketcher.Constraint("Coincident", 10, 3, -1, 1),
    Sketcher.Constraint("Coincident", 14, 3, -1, 1),
    Sketcher.Constraint("Coincident", 20, 3, -1, 1),
    Sketcher.Constraint("Coincident", 24, 3, -1, 1),
    Sketcher.Constraint("Coincident", 29, 3, -1, 1),
    Sketcher.Constraint("Coincident", 33, 3, -1, 1),
    Sketcher.Constraint("Coincident", 38, 3, -1, 1),
    Sketcher.Constraint("Coincident", 42, 3, -1, 1),
    Sketcher.Constraint("Coincident", 49, 3, -1, 1),
    Sketcher.Constraint("Coincident", 54, 3, -1, 1),
    Sketcher.Constraint("Equal", 1, 3),
    Sketcher.Constraint("Equal", 4, 5),
    Sketcher.Constraint("Equal", 3, 6),
    Sketcher.Constraint("Equal", 6, 8),
    Sketcher.Constraint("Equal", 0, 9),
    Sketcher.Constraint("Equal", 9, 10),
    Sketcher.Constraint("Equal", 8, 11),
    Sketcher.Constraint("Equal", 11, 13),
    Sketcher.Constraint("Equal", 5, 14),
    Sketcher.Constraint("Equal", 14, 15),
    Sketcher.Constraint("Equal", 13, 16),
    Sketcher.Constraint("Equal", 16, 18),
    Sketcher.Constraint("Equal", 18, 19),
    Sketcher.Constraint("Equal", 10, 20),
    Sketcher.Constraint("Equal", 19, 21),
    Sketcher.Constraint("Equal", 21, 23),
    Sketcher.Constraint("Equal", 15, 24),
    Sketcher.Constraint("Equal", 24, 25),
    Sketcher.Constraint("Equal", 23, 26),
    Sketcher.Constraint("Equal", 26, 28),
    Sketcher.Constraint("Equal", 20, 29),
    Sketcher.Constraint("Equal", 28, 30),
    Sketcher.Constraint("Equal", 30, 32),
    Sketcher.Constraint("Equal", 25, 33),
    Sketcher.Constraint("Equal", 33, 34),
    Sketcher.Constraint("Equal", 32, 35),
    Sketcher.Constraint("Equal", 35, 37),
    Sketcher.Constraint("Equal", 29, 38),
    Sketcher.Constraint("Equal", 37, 39),
    Sketcher.Constraint("Equal", 39, 41),
    Sketcher.Constraint("Equal", 34, 42),
    Sketcher.Constraint("Equal", 42, 43),
    Sketcher.Constraint("Equal", 41, 44),
    Sketcher.Constraint("Equal", 44, 46),
    Sketcher.Constraint("Equal", 46, 48),
    Sketcher.Constraint("Equal", 43, 49),
    Sketcher.Constraint("Equal", 49, 50),
    Sketcher.Constraint("Equal", 48, 51),
    Sketcher.Constraint("Equal", 51, 53),
    Sketcher.Constraint("Equal", 38, 54),
    Sketcher.Constraint("Equal", 55, 56),
    Sketcher.Constraint("Equal", 56, 57),
    Sketcher.Constraint("Equal", 57, 58),
    Sketcher.Constraint("Equal", 58, 59),
    Sketcher.Constraint("Equal", 59, 60),
    Sketcher.Constraint("Symmetric", 56, 3, 58, 3, -1, 1),
    Sketcher.Constraint("Symmetric", 57, 3, 59, 3, -1, 1),
    Sketcher.Constraint("Symmetric", 55, 3, 60, 3, -1, 1),
    Sketcher.Constraint("Symmetric", 1, 1, 30, 1, -1, 1),
    Sketcher.Constraint("Symmetric", 6, 2, 35, 2, -1, 1),
    Sketcher.Constraint("Symmetric", 11, 1, 39, 1, -1, 1),
    Sketcher.Constraint("Symmetric", 16, 2, 44, 2, -1, 1),
    Sketcher.Constraint("Symmetric", 21, 1, 46, 1, -1, 1),
    Sketcher.Constraint("Symmetric", 26, 2, 51, 2, -1, 1),
    Sketcher.Constraint("Symmetric", 56, 3, 57, 3, -2),
    Sketcher.Constraint("Symmetric", 17, 2, 21, 1, -2),
    Sketcher.Constraint("Symmetric", 12, 2, 26, 2, -2),
    Sketcher.Constraint("Symmetric", 7, 2, 30, 1, -2),
    Sketcher.Constraint("PointOnObject", 55, 3, -2),
    Sketcher.Constraint("PointOnObject", 4, 1, -1),
    Sketcher.Constraint("PointOnObject", 9, 2, -1),
    Sketcher.Constraint("PointOnObject", 33, 1, -1),
    Sketcher.Constraint("Horizontal", 14, 1, 24, 1),
    Sketcher.Constraint("Horizontal", 42, 1, 49, 1),
    Sketcher.Constraint("Vertical", 24, 1, 42, 1),
    Sketcher.Constraint("Equal", 7, 12),
    Sketcher.Constraint("Equal", 12, 17),
    Sketcher.Constraint("Diameter", 55, Q("0.18 in")),
    Sketcher.Constraint("Radius", 0, Q("3.05 in")),
    Sketcher.Constraint("Radius", 1, Q("0.25 in")),
    Sketcher.Constraint("Radius", 4, Q("2.75 in")),
    Sketcher.Constraint("DistanceY", -1, 1, 55, 3, Q("2.875 in")),
    Sketcher.Constraint("DistanceY", -1, 1, 56, 3, Q("1.4375 in")),
    Sketcher.Constraint("DistanceX", -1, 1, 14, 1, Q("1.375 in")),
    Sketcher.Constraint("DistanceX", -1, 1, 13, 2, Q("47.521998 mm")),
    Sketcher.Constraint("DistanceY", -1, 1, 3, 3, Q("16.973409 mm")),
    Sketcher.Constraint("DistanceY", 16, 3, -1, 1, Q("72.819881 mm")),
    Sketcher.Constraint("DistanceY", 18, 3, -1, 1, Q("70.507181 mm")),
    Sketcher.Constraint("DistanceX", -1, 1, 56, 3, Q("63.241505 mm")),
])
pocket1 = body.newObject("PartDesign::Pocket", "Pocket")
pocket1.Profile = sketch3
pocket1.Type = "ThroughAll"

doc.recompute()
